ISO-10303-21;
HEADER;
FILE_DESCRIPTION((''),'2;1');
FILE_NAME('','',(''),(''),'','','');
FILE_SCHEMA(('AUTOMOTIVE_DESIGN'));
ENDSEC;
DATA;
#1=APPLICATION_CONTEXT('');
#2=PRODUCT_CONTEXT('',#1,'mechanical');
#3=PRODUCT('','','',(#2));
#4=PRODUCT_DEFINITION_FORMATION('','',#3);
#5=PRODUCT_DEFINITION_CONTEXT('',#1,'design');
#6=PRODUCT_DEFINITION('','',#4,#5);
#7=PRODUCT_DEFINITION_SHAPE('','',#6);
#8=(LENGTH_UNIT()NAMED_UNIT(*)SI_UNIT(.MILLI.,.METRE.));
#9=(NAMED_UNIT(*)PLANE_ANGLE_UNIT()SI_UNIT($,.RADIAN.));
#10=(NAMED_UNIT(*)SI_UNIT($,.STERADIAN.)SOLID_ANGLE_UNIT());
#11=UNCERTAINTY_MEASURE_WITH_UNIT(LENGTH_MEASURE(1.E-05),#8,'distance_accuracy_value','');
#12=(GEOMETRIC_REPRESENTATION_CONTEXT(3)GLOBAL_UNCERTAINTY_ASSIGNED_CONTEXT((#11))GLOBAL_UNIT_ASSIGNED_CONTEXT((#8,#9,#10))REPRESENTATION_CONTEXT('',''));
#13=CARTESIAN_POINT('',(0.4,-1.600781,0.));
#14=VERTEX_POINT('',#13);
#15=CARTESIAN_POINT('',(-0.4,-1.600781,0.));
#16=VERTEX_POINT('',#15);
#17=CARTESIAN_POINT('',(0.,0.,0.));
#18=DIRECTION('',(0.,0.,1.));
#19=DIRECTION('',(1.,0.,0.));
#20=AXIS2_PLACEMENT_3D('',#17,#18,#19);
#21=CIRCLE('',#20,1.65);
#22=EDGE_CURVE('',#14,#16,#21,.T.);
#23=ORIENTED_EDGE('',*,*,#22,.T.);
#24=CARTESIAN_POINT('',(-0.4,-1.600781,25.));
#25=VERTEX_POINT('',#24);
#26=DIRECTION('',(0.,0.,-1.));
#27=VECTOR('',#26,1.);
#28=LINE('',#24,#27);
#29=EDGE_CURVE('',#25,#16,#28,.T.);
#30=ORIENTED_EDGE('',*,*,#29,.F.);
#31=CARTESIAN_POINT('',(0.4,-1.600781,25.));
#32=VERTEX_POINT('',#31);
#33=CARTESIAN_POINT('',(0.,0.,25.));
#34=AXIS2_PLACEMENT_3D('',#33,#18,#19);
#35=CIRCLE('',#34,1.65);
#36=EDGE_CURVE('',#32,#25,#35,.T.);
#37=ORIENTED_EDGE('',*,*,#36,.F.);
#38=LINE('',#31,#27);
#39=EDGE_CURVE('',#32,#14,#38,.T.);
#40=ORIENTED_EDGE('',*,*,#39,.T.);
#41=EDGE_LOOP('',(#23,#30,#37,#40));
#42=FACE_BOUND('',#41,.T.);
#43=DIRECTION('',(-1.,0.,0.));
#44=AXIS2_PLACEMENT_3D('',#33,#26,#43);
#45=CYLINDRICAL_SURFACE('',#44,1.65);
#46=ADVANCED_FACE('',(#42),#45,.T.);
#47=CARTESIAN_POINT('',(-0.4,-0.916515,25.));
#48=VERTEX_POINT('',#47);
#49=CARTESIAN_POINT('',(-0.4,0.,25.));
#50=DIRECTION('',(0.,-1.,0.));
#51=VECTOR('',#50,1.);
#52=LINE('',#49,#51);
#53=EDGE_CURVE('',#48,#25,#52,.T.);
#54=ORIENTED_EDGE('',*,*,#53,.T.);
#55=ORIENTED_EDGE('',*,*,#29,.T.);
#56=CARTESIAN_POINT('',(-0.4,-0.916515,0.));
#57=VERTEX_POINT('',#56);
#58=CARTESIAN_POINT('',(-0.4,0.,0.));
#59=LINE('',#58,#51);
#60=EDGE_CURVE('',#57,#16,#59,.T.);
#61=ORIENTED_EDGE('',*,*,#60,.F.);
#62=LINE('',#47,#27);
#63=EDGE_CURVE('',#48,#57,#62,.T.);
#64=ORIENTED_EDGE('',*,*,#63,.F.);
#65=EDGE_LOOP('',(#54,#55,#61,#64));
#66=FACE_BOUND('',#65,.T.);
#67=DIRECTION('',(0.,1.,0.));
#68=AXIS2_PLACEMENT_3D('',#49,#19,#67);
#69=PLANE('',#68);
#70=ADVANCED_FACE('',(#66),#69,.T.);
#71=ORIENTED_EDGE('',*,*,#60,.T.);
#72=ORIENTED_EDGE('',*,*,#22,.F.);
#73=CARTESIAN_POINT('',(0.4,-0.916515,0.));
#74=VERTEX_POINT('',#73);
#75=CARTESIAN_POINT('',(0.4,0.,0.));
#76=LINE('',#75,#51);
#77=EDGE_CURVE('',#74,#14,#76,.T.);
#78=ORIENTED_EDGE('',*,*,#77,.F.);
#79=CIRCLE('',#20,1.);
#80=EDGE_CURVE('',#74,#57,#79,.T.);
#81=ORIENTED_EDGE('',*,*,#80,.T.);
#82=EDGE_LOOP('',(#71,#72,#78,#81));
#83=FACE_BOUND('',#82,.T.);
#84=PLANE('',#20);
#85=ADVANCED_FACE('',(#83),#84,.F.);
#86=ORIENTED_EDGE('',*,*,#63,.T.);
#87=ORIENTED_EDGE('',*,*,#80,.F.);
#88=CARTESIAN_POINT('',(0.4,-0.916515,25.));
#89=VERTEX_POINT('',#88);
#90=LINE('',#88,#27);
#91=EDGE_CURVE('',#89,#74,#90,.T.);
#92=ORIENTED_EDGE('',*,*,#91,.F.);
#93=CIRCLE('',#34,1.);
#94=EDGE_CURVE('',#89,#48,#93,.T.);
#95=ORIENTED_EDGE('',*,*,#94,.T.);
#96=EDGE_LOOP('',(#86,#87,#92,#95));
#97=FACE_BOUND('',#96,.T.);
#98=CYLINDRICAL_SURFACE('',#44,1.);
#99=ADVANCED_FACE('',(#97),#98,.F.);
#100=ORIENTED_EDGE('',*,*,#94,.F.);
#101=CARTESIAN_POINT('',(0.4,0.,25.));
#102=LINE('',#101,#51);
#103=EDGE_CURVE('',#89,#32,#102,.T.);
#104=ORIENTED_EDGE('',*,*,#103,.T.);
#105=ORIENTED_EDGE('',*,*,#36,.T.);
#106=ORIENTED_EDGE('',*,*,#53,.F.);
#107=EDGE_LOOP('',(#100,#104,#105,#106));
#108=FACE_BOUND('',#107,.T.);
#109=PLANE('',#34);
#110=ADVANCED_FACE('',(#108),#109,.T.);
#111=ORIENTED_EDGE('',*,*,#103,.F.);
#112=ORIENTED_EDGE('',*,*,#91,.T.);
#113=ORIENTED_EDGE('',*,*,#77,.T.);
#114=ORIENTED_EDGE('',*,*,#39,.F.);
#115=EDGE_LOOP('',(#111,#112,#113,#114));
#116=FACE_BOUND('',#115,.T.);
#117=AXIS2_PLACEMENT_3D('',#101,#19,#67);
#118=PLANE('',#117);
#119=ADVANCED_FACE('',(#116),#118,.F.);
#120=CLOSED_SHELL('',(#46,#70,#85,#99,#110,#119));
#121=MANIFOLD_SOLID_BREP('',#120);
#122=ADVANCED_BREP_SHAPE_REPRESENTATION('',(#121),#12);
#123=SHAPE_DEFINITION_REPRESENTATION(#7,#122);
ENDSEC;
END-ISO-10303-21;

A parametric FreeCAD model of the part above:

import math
import FreeCAD as App
import Part
import Sketcher

V = App.Vector
Q = App.Units.Quantity

doc = App.newDocument("Part")
body = doc.addObject("PartDesign::Body", "Body")

sketch1 = body.newObject("Sketcher::SketchObject", "Sketch")
sketch1.AttachmentSupport = (doc.getObject("XY_Plane"), [""])
sketch1.MapMode = "FlatFace"
sketch1.addGeometry(Part.LineSegment(V(-0.4, -1.600781, 0), V(-0.4, -0.916515, 0)), False)
sketch1.addGeometry(Part.ArcOfCircle(Part.Circle(V(0, 0, 0), V(0, 0, 1), 1), math.radians(0), math.radians(246.421822)), False)
sketch1.addGeometry(Part.ArcOfCircle(Part.Circle(V(0, 0, 0), V(0, 0, 1), 1), math.radians(-66.421822), math.radians(0)), False)
sketch1.addGeometry(Part.LineSegment(V(0.4, -0.916515, 0), V(0.4, -1.600781, 0)), False)
sketch1.addGeometry(Part.ArcOfCircle(Part.Circle(V(0, 0, 0), V(0, 0, 1), 1.65), math.radians(-75.970335), math.radians(0)), False)
sketch1.addGeometry(Part.ArcOfCircle(Part.Circle(V(0, 0, 0), V(0, 0, 1), 1.65), math.radians(0), math.radians(255.970335)), False)
sketch1.addConstraint(Sketcher.Constraint("Coincident", 0, 2, 1, 2))
sketch1.addConstraint(Sketcher.Constraint("Tangent", 1, 1, 2, 2))
sketch1.addConstraint(Sketcher.Constraint("Coincident", 2, 1, 3, 1))
sketch1.addConstraint(Sketcher.Constraint("Coincident", 3, 2, 4, 1))
sketch1.addConstraint(Sketcher.Constraint("Tangent", 4, 2, 5, 1))
sketch1.addConstraint(Sketcher.Constraint("Coincident", 5, 2, 0, 1))
sketch1.addConstraint(Sketcher.Constraint("Vertical", 0))
sketch1.addConstraint(Sketcher.Constraint("Vertical", 3))
sketch1.addConstraint(Sketcher.Constraint("Coincident", 1, 3, -1, 1))
sketch1.addConstraint(Sketcher.Constraint("Coincident", 4, 3, -1, 1))
sketch1.addConstraint(Sketcher.Constraint("Equal", 1, 2))
sketch1.addConstraint(Sketcher.Constraint("Equal", 4, 5))
sketch1.addConstraint(Sketcher.Constraint("PointOnObject", 1, 1, -1))
sketch1.addConstraint(Sketcher.Constraint("PointOnObject", 4, 2, -1))
sketch1.addConstraint(Sketcher.Constraint("Horizontal", 0, 2, 2, 1))
sketch1.addConstraint(Sketcher.Constraint("Radius", 1, Q("1 mm")))
sketch1.addConstraint(Sketcher.Constraint("Radius", 4, Q("1.65 mm")))
sketch1.addConstraint(Sketcher.Constraint("DistanceX", 0, 2, -1, 1, Q("0.4 mm")))
pad1 = body.newObject("PartDesign::Pad", "Pad")
pad1.Profile = sketch1
pad1.Length = 25

doc.recompute()
